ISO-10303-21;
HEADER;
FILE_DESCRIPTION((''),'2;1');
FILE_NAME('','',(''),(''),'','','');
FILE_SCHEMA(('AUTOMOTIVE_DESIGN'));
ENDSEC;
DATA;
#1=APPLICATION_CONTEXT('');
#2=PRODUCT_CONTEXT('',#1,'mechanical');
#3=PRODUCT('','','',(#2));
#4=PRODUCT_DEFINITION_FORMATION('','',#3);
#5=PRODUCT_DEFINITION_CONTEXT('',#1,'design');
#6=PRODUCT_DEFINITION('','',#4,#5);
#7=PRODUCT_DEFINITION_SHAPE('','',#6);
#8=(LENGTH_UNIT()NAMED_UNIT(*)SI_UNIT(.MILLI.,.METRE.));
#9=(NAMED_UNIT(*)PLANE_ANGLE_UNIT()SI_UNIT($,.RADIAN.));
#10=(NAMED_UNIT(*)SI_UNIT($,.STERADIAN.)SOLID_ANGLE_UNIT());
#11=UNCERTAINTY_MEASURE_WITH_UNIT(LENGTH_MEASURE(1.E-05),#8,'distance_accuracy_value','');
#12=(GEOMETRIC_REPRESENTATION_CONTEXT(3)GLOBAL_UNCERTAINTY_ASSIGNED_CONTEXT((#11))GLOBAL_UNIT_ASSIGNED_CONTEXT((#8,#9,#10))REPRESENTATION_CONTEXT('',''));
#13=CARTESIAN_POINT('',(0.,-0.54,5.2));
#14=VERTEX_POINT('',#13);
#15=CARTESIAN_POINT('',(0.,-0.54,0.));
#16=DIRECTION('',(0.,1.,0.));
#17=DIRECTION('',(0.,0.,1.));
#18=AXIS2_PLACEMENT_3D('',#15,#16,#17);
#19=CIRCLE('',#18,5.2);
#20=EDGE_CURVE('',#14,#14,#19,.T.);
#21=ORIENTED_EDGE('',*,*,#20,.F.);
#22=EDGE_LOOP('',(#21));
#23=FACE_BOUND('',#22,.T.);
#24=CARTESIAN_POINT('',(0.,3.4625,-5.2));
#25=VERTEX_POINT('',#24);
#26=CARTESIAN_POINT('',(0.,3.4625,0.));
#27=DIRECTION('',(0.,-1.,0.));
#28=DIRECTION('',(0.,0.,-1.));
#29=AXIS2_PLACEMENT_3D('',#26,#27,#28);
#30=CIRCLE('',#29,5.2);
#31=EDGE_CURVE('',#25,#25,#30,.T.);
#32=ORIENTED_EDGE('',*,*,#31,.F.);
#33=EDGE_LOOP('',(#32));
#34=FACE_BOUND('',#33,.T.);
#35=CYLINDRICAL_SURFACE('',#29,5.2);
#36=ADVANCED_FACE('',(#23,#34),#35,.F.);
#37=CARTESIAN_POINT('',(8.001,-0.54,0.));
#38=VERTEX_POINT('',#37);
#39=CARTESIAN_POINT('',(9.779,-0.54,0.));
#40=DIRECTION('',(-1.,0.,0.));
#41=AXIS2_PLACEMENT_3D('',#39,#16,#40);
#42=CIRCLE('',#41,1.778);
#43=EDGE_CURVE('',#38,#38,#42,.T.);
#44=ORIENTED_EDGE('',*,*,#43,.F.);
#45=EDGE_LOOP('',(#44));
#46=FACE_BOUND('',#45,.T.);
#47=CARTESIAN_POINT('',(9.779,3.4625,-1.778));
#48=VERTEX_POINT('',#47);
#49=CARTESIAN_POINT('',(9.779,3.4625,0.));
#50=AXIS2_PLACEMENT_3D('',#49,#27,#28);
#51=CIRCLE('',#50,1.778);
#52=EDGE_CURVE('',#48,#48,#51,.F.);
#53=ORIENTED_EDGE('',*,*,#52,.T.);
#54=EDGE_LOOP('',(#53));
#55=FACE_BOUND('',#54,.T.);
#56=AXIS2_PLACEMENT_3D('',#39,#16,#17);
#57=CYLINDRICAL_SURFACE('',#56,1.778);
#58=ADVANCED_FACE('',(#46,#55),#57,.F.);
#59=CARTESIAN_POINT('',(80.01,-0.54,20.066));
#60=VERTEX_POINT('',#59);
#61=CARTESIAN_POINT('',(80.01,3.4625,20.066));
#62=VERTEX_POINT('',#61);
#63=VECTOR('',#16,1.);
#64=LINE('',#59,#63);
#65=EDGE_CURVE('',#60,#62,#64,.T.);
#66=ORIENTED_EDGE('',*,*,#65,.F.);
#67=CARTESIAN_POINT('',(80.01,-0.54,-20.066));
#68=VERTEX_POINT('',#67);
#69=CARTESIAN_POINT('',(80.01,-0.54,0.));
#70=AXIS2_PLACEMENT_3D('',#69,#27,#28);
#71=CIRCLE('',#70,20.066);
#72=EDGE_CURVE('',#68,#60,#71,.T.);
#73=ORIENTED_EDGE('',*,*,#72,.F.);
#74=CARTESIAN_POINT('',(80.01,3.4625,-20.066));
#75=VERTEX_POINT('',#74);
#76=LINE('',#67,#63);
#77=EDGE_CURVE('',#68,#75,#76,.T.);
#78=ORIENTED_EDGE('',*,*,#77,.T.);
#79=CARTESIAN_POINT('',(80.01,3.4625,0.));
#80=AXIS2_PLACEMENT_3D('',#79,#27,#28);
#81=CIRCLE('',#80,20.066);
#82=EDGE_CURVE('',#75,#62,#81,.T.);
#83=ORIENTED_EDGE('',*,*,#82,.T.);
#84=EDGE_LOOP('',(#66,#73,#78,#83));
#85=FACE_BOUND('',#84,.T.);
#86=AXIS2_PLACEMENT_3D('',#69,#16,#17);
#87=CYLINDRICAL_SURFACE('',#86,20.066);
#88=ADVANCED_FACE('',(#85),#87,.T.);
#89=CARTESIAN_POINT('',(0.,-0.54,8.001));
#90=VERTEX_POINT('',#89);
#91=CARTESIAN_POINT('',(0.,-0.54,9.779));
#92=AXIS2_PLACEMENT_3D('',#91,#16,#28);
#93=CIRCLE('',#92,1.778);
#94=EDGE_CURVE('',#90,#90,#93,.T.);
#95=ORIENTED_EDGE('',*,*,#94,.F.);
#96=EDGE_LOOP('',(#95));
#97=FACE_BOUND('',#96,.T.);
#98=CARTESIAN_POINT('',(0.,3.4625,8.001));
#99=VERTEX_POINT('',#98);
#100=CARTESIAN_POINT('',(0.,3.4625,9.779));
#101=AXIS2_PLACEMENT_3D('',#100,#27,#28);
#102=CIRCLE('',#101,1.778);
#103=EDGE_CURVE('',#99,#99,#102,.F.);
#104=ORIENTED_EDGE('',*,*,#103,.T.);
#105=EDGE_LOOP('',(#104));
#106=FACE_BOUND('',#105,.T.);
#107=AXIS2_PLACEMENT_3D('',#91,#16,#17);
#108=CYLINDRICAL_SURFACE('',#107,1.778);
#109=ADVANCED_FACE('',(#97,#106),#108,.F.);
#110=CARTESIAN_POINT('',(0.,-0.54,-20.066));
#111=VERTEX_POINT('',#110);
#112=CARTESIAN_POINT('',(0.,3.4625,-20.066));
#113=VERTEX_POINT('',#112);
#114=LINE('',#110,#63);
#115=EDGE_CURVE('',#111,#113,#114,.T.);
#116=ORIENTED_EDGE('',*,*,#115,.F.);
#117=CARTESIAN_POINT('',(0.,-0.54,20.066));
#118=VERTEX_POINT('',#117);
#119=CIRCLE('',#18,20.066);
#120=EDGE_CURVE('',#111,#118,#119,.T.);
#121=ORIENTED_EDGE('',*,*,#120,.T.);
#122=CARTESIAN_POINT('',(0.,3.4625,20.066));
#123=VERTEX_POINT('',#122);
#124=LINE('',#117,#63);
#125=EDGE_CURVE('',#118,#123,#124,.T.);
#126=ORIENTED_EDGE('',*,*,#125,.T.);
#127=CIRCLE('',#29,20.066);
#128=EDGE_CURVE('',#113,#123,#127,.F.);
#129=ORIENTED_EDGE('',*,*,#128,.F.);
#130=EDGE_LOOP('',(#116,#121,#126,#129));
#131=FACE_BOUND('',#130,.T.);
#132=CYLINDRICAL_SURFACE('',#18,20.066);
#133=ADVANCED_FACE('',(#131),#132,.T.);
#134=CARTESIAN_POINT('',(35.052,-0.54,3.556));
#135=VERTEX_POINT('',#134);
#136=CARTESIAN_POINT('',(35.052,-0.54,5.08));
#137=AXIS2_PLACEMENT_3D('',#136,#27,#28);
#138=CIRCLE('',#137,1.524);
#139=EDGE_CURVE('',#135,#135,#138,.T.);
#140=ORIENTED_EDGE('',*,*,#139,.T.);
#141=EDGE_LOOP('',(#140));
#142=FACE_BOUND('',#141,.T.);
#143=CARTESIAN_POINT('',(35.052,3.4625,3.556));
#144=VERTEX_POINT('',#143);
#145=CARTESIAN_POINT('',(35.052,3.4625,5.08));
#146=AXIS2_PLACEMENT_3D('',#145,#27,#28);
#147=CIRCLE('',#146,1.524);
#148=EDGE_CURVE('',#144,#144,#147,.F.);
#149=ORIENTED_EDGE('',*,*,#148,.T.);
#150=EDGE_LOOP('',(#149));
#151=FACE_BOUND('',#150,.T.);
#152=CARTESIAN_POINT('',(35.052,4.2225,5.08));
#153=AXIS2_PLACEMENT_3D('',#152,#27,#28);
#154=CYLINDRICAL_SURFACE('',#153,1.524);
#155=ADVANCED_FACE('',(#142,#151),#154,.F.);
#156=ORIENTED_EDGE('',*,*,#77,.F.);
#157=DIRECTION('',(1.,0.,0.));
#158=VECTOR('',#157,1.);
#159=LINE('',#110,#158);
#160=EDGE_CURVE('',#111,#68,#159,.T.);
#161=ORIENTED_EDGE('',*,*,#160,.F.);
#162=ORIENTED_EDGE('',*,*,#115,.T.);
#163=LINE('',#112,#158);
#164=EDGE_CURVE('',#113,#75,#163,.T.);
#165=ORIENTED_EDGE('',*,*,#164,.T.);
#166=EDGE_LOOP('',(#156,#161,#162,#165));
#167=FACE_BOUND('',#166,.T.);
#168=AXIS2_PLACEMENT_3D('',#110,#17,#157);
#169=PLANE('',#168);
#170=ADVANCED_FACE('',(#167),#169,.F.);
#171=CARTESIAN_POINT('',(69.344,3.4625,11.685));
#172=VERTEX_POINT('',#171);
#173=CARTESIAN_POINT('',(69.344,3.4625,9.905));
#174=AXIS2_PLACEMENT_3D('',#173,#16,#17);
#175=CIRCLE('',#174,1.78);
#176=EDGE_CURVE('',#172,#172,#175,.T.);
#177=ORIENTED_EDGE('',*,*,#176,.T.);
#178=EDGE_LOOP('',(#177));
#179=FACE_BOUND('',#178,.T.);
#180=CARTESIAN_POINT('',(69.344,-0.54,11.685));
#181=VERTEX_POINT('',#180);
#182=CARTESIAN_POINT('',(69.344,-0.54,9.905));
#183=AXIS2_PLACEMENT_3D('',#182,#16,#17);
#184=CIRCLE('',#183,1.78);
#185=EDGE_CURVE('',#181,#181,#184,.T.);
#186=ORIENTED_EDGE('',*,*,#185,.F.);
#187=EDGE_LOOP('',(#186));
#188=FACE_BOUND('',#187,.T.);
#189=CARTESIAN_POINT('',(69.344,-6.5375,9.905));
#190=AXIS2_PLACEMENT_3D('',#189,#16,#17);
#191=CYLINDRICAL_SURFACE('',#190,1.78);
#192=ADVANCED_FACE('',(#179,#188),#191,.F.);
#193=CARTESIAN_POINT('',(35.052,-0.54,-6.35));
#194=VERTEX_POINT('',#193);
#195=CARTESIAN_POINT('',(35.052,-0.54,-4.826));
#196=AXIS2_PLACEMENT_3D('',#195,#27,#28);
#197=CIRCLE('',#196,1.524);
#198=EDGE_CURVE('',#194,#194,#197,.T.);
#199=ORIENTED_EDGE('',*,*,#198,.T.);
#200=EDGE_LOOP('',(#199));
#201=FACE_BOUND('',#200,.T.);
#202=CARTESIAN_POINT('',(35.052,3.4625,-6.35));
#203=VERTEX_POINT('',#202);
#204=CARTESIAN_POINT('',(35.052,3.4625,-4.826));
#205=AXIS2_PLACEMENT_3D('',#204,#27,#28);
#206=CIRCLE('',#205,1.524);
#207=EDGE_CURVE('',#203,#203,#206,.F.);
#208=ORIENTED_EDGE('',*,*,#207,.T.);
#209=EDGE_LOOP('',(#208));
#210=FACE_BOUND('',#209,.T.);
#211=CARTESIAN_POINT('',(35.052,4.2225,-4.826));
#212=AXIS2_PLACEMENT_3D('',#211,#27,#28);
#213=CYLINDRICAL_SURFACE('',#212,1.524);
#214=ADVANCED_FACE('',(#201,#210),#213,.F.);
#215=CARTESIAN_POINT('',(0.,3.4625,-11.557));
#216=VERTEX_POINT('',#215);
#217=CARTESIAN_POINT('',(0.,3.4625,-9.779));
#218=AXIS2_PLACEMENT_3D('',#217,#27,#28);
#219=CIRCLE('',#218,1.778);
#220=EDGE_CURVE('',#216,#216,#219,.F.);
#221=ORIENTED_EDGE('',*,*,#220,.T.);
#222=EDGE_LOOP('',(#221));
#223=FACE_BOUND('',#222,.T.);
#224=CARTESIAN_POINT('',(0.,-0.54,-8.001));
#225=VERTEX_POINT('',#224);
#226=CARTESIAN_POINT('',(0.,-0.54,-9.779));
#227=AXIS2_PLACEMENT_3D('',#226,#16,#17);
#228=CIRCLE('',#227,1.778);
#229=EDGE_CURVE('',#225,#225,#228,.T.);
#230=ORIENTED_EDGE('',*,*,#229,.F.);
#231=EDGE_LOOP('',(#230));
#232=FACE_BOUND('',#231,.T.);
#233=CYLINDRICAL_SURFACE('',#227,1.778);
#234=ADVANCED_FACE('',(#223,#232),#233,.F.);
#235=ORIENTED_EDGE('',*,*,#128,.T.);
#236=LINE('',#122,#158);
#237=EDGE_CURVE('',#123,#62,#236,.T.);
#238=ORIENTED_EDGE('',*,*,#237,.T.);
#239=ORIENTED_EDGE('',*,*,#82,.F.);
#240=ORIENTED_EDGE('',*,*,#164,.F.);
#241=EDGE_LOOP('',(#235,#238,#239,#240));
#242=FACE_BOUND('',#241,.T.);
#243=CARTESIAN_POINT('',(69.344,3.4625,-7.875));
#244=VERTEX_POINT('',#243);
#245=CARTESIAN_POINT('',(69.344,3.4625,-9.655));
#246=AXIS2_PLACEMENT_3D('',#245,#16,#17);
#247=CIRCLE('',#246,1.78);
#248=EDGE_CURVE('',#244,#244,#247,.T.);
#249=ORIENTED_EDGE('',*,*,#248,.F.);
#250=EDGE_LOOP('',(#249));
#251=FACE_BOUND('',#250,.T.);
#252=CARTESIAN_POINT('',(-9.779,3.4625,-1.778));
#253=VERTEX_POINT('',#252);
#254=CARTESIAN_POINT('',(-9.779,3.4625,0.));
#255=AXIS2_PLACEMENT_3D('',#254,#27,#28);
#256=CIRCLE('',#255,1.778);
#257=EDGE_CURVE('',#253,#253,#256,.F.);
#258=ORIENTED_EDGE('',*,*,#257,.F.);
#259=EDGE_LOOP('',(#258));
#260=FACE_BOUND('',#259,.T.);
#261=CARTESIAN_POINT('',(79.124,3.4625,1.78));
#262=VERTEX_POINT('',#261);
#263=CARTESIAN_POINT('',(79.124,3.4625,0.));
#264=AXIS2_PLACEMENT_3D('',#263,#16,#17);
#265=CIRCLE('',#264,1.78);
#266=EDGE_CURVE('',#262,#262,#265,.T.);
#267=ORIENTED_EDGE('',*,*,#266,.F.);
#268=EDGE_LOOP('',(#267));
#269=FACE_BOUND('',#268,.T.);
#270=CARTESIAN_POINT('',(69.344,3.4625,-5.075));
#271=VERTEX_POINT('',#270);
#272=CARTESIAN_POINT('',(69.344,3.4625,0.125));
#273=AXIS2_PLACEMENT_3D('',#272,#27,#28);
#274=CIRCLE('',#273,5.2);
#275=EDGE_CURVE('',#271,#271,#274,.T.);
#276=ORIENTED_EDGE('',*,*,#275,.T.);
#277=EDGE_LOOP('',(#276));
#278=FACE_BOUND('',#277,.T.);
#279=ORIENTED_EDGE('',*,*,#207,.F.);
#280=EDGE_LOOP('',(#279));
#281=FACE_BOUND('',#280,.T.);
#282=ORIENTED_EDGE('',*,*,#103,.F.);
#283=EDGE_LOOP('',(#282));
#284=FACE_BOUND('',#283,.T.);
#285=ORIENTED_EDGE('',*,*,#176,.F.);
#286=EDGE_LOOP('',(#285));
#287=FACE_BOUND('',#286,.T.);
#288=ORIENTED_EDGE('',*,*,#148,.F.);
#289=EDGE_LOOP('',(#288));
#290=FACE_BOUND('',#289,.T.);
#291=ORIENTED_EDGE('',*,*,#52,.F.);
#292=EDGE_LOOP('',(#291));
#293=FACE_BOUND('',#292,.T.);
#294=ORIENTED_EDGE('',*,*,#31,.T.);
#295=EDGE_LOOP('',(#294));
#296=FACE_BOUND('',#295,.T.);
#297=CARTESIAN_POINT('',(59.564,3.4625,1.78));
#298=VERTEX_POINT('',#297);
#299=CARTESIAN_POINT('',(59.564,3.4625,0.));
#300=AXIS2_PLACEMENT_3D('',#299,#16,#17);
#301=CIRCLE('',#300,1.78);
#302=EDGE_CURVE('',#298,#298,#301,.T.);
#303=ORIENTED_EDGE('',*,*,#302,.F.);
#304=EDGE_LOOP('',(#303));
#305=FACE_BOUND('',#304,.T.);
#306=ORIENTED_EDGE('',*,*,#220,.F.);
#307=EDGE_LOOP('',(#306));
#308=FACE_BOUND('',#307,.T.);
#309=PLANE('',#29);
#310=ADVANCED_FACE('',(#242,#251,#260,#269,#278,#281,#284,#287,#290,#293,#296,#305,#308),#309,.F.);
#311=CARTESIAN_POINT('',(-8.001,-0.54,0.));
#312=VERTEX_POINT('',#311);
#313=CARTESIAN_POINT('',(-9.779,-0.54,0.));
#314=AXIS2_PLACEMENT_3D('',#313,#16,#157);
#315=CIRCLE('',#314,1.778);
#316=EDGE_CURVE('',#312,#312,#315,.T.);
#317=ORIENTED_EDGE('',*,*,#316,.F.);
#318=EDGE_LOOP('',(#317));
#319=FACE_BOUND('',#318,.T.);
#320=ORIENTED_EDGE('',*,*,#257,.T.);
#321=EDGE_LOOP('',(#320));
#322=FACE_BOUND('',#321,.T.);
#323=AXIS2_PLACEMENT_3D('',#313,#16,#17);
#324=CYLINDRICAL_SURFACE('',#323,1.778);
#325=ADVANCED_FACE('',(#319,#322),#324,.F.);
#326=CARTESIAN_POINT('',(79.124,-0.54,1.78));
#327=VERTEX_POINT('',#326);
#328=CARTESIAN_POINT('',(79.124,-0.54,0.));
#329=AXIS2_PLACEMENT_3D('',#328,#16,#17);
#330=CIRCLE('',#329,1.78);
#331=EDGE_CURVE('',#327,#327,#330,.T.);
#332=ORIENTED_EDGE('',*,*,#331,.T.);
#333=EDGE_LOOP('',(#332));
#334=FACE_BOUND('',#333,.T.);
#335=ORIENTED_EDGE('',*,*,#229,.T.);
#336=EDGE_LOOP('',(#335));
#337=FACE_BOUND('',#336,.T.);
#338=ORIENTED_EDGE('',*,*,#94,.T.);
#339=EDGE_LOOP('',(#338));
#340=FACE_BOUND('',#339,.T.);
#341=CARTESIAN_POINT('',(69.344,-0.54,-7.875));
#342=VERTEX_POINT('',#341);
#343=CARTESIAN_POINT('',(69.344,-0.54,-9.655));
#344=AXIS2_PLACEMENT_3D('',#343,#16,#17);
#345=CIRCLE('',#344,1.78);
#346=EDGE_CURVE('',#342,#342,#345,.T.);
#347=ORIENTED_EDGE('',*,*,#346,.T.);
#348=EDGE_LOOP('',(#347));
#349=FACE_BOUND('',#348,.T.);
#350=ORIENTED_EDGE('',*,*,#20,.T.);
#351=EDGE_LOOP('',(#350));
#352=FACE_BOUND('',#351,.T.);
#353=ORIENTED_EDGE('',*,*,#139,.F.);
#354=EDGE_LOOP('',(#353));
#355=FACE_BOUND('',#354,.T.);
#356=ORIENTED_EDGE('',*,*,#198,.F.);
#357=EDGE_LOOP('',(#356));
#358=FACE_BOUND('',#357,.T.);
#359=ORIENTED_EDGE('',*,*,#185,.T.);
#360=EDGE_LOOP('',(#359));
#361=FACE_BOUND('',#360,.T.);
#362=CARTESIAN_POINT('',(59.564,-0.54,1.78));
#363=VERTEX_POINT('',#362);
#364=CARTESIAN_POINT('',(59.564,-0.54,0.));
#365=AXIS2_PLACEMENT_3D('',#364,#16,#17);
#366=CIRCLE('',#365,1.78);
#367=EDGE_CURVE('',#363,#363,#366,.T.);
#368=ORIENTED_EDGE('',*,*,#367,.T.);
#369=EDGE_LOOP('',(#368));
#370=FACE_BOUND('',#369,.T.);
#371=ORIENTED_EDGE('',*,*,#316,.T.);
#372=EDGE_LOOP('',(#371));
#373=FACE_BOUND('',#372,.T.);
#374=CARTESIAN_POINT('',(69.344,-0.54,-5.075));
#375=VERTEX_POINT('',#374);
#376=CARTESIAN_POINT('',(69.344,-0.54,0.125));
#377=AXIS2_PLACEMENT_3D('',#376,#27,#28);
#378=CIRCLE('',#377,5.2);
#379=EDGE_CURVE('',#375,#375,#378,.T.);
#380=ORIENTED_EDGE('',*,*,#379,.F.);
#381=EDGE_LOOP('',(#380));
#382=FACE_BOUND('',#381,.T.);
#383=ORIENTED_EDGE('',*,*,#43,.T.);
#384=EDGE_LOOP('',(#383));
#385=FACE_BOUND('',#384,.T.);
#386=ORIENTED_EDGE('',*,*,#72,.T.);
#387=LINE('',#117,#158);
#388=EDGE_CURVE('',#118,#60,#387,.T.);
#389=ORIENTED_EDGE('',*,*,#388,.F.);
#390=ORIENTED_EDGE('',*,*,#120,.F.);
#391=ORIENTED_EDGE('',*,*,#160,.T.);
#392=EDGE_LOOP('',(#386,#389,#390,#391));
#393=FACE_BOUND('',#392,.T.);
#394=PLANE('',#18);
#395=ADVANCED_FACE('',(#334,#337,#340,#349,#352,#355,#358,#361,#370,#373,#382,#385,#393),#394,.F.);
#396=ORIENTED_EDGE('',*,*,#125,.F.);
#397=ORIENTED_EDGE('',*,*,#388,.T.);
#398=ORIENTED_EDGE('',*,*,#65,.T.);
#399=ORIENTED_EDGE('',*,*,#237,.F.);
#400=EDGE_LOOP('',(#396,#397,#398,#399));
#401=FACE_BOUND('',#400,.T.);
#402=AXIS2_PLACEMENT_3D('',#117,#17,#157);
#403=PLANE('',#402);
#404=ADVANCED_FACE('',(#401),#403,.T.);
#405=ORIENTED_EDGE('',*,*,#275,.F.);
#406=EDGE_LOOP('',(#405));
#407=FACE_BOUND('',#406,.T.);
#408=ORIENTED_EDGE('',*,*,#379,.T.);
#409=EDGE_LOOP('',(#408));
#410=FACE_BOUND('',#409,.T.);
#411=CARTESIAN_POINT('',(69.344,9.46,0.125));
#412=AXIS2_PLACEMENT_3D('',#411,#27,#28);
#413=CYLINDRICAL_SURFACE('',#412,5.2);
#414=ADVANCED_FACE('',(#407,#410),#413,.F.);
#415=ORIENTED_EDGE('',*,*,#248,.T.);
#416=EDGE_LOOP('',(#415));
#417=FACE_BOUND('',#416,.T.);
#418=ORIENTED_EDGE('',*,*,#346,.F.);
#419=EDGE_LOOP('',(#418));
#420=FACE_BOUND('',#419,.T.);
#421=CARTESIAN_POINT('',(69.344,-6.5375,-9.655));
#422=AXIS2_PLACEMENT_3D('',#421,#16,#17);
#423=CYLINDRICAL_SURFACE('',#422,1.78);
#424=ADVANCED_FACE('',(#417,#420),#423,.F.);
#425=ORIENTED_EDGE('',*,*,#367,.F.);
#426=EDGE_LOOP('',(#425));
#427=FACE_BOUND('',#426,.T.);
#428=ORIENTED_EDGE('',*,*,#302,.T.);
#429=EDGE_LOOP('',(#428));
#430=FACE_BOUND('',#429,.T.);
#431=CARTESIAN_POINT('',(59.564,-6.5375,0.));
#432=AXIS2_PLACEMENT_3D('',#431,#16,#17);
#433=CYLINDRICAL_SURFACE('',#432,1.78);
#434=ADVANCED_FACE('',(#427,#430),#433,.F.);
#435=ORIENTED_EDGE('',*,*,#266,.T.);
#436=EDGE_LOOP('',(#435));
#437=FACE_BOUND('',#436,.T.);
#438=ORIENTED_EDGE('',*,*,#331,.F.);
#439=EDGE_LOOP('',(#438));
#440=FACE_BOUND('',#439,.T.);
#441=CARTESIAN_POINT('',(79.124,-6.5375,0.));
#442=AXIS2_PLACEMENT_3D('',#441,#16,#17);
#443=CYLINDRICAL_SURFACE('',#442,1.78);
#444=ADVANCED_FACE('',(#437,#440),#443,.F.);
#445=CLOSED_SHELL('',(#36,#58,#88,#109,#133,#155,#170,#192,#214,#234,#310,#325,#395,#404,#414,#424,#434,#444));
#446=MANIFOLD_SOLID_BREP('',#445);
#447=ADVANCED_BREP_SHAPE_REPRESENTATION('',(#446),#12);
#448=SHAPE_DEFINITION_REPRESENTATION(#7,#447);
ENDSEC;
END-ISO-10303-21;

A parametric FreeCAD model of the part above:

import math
import FreeCAD as App
import Part
import Sketcher
from FreeCAD import Vector
Q = App.Units.Quantity


def add_polygon(sketch, points):
    """Adds a closed chain of lines whose ends are joined by coincident constraints."""
    first, n = sketch.GeometryCount, len(points)
    for a, b in zip(points, points[1:] + points[:1]):
        sketch.addGeometry(Part.LineSegment(App.Vector(*a, 0), App.Vector(*b, 0)), False)
    for i in range(n):
        sketch.addConstraint(Sketcher.Constraint("Coincident", first + i, 2, first + (i + 1) % n, 1))

doc = App.newDocument("Part")
body = doc.addObject("PartDesign::Body", "Body")

sketch1 = body.newObject("Sketcher::SketchObject", "Sketch")
sketch1.AttachmentSupport = (doc.getObject("XZ_Plane"), [""])
sketch1.MapMode = "FlatFace"
sketch1.addGeometry([
    Part.LineSegment(Vector(-2.5, -13.4, 0), Vector(-4, -4, 0)),
    Part.LineSegment(Vector(-4, -4, 0), Vector(-12.4, -2.5, 0)),
    Part.ArcOfCircle(Part.Circle(Vector(-12, 0, 0), Vector(0, 0, 1), 2.5), math.radians(100), math.radians(260)),
    Part.LineSegment(Vector(-12.4, 2.5, 0), Vector(-4, 4, 0)),
    Part.LineSegment(Vector(-4, 4, 0), Vector(-2.5, 13.4, 0)),
    Part.ArcOfCircle(Part.Circle(Vector(0, 13, 0), Vector(0, 0, 1), 2.5), math.radians(9), math.radians(171)),
    Part.LineSegment(Vector(2.5, 13.4, 0), Vector(4, 4, 0)),
    Part.LineSegment(Vector(4, 4, 0), Vector(12.4, 2.5, 0)),
    Part.ArcOfCircle(Part.Circle(Vector(12, 0, 0), Vector(0, 0, 1), 2.5), math.radians(-80), math.radians(80)),
    Part.LineSegment(Vector(12.4, -2.5, 0), Vector(4, -4, 0)),
    Part.LineSegment(Vector(4, -4, 0), Vector(2.5, -13.4, 0)),
    Part.ArcOfCircle(Part.Circle(Vector(0, -13, 0), Vector(0, 0, 1), 2.5), math.radians(-171), math.radians(-9)),
    Part.Circle(Vector(0, 12, 0), Vector(0, 0, 1), 0.5),
    Part.Circle(Vector(0, 9.5, 0), Vector(0, 0, 1), 0.5),
    Part.Circle(Vector(0, 7.5, 0), Vector(0, 0, 1), 0.5),
    Part.Circle(Vector(12, 0, 0), Vector(0, 0, 1), 0.5),
    Part.Circle(Vector(9.5, 0, 0), Vector(0, 0, 1), 0.5),
    Part.Circle(Vector(7.5, 0, 0), Vector(0, 0, 1), 0.5),
    Part.Circle(Vector(0, 0, 0), Vector(0, 0, 1), 1.4),
    Part.Circle(Vector(-7.5, 0, 0), Vector(0, 0, 1), 0.5),
    Part.Circle(Vector(-9.5, 0, 0), Vector(0, 0, 1), 0.5),
    Part.Circle(Vector(-12, 0, 0), Vector(0, 0, 1), 0.5),
    Part.Circle(Vector(0, -7.5, 0), Vector(0, 0, 1), 0.5),
    Part.Circle(Vector(0, -9.5, 0), Vector(0, 0, 1), 0.5),
    Part.Circle(Vector(0, -12, 0), Vector(0, 0, 1), 0.5),
], False)
sketch1.addConstraint([
    Sketcher.Constraint("Coincident", 0, 2, 1, 1),
    Sketcher.Constraint("Tangent", 1, 2, 2, 2),
    Sketcher.Constraint("Tangent", 2, 1, 3, 1),
    Sketcher.Constraint("Coincident", 3, 2, 4, 1),
    Sketcher.Constraint("Tangent", 4, 2, 5, 2),
    Sketcher.Constraint("Tangent", 5, 1, 6, 1),
    Sketcher.Constraint("Coincident", 6, 2, 7, 1),
    Sketcher.Constraint("Tangent", 7, 2, 8, 2),
    Sketcher.Constraint("Tangent", 8, 1, 9, 1),
    Sketcher.Constraint("Coincident", 9, 2, 10, 1),
    Sketcher.Constraint("Tangent", 10, 2, 11, 2),
    Sketcher.Constraint("Tangent", 11, 1, 0, 1),
    Sketcher.Constraint("Coincident", 18, 3, -1, 1),
    Sketcher.Constraint("Coincident", 15, 3, 8, 3),
    Sketcher.Constraint("Coincident", 21, 3, 2, 3),
    Sketcher.Constraint("Equal", 2, 5),
    Sketcher.Constraint("Equal", 5, 8),
    Sketcher.Constraint("Equal", 8, 11),
    Sketcher.Constraint("Equal", 12, 13),
    Sketcher.Constraint("Equal", 13, 14),
    Sketcher.Constraint("Equal", 14, 15),
    Sketcher.Constraint("Equal", 15, 16),
    Sketcher.Constraint("Equal", 16, 17),
    Sketcher.Constraint("Equal", 17, 19),
    Sketcher.Constraint("Equal", 19, 20),
    Sketcher.Constraint("Equal", 20, 21),
    Sketcher.Constraint("Equal", 21, 22),
    Sketcher.Constraint("Equal", 22, 23),
    Sketcher.Constraint("Equal", 23, 24),
    Sketcher.Constraint("Symmetric", 2, 3, 8, 3, -1, 1),
    Sketcher.Constraint("Symmetric", 5, 3, 11, 3, -1, 1),
    Sketcher.Constraint("Symmetric", 17, 3, 19, 3, -1, 1),
    Sketcher.Constraint("Symmetric", 16, 3, 20, 3, -1, 1),
    Sketcher.Constraint("Symmetric", 14, 3, 22, 3, -1, 1),
    Sketcher.Constraint("Symmetric", 13, 3, 23, 3, -1, 1),
    Sketcher.Constraint("Symmetric", 12, 3, 24, 3, -1, 1),
    Sketcher.Constraint("Symmetric", 0, 2, 6, 2, -1, 1),
    Sketcher.Constraint("Symmetric", 3, 2, 9, 2, -1, 1),
    Sketcher.Constraint("Symmetric", 4, 2, 5, 1, -2),
    Sketcher.Constraint("Symmetric", 2, 1, 7, 2, -2),
    Sketcher.Constraint("PointOnObject", 12, 3, -2),
    Sketcher.Constraint("PointOnObject", 13, 3, -2),
    Sketcher.Constraint("PointOnObject", 14, 3, -2),
    Sketcher.Constraint("PointOnObject", 16, 3, -1),
    Sketcher.Constraint("PointOnObject", 17, 3, -1),
    Sketcher.Constraint("Diameter", 12, 1.0),
    Sketcher.Constraint("Diameter", 18, 2.75),
    Sketcher.Constraint("Radius", 2, 2.5),
    Sketcher.Constraint("DistanceX", 2, 3, -1, 1, 12.0),
    Sketcher.Constraint("DistanceY", -1, 1, 5, 3, 13.0),
    Sketcher.Constraint("DistanceY", -1, 1, 12, 3, 12.0),
    Sketcher.Constraint("DistanceY", -1, 1, 13, 3, 9.5),
    Sketcher.Constraint("DistanceY", -1, 1, 14, 3, 7.5),
    Sketcher.Constraint("DistanceX", -1, 1, 16, 3, 9.5),
    Sketcher.Constraint("DistanceX", -1, 1, 17, 3, 7.5),
    Sketcher.Constraint("DistanceX", 0, 2, -1, 1, 4.0),
    Sketcher.Constraint("DistanceY", 0, 2, -1, 1, 4.0),
])
pad1 = body.newObject("PartDesign::Pad", "Pad")
pad1.Profile = sketch1
pad1.Length = 2
pad1.Reversed = True

sketch2 = body.newObject("Sketcher::SketchObject", "Sketch001")
sketch2.AttachmentSupport = (doc.getObject("XZ_Plane"), [""])
sketch2.MapMode = "FlatFace"
sketch2.addGeometry([
    Part.Circle(Vector(0, 0, 0), Vector(0, 0, 1), 4.6),
    Part.Circle(Vector(0, 0, 0), Vector(0, 0, 1), 2.6),
], False)
sketch2.addConstraint([
    Sketcher.Constraint("Coincident", 0, 3, -1, 1),
    Sketcher.Constraint("Coincident", 1, 3, -1, 1),
    Sketcher.Constraint("Diameter", 0, 9.254007),
    Sketcher.Constraint("Diameter", 1, 5.254007),
])
pad2 = body.newObject("PartDesign::Pad", "Pad001")
pad2.Profile = sketch2
pad2.Length = 2.5

sketch3 = body.newObject("Sketcher::SketchObject", "Sketch002")
sketch3.AttachmentSupport = (doc.getObject("XZ_Plane"), [""])
sketch3.MapMode = "FlatFace"
sketch3.AttachmentOffset = App.Placement(Vector(0, 0, 2.5), App.Rotation())
sketch3.addGeometry([
    Part.LineSegment(Vector(0.28, 2.61, 0), Vector(0, 3.1, 0)),
    Part.LineSegment(Vector(0, 3.1, 0), Vector(-0.28, 2.61, 0)),
    Part.ArcOfCircle(Part.Circle(Vector(0, 0, 0), Vector(0, 0, 1), 2.63), math.radians(96.18), math.radians(101.82)),
    Part.LineSegment(Vector(-0.54, 2.57, 0), Vector(-0.96, 2.95, 0)),
    Part.LineSegment(Vector(-0.96, 2.95, 0), Vector(-1.08, 2.4, 0)),
    Part.ArcOfCircle(Part.Circle(Vector(0, 0, 0), Vector(0, 0, 1), 2.63), math.radians(114.18), math.radians(119.82)),
    Part.LineSegment(Vector(-1.31, 2.28, 0), Vector(-1.82, 2.51, 0)),
    Part.LineSegment(Vector(-1.82, 2.51, 0), Vector(-1.76, 1.95, 0)),
    Part.ArcOfCircle(Part.Circle(Vector(0, 0, 0), Vector(0, 0, 1), 2.63), math.radians(132.18), math.radians(137.82)),
    Part.LineSegment(Vector(-1.95, 1.76, 0), Vector(-2.51, 1.82, 0)),
    Part.LineSegment(Vector(-2.51, 1.82, 0), Vector(-2.28, 1.31, 0)),
    Part.ArcOfCircle(Part.Circle(Vector(0, 0, 0), Vector(0, 0, 1), 2.63), math.radians(150.18), math.radians(155.82)),
    Part.LineSegment(Vector(-2.4, 1.08, 0), Vector(-2.95, 0.96, 0)),
    Part.LineSegment(Vector(-2.95, 0.96, 0), Vector(-2.57, 0.54, 0)),
    Part.ArcOfCircle(Part.Circle(Vector(0, 0, 0), Vector(0, 0, 1), 2.63), math.radians(168.18), math.radians(173.82)),
    Part.LineSegment(Vector(-2.61, 0.28, 0), Vector(-3.1, 0, 0)),
    Part.LineSegment(Vector(-3.1, 0, 0), Vector(-2.61, -0.28, 0)),
    Part.ArcOfCircle(Part.Circle(Vector(0, 0, 0), Vector(0, 0, 1), 2.63), math.radians(-173.82), math.radians(-168.18)),
    Part.LineSegment(Vector(-2.57, -0.54, 0), Vector(-2.95, -0.96, 0)),
    Part.LineSegment(Vector(-2.95, -0.96, 0), Vector(-2.4, -1.08, 0)),
    Part.ArcOfCircle(Part.Circle(Vector(0, 0, 0), Vector(0, 0, 1), 2.63), math.radians(-155.82), math.radians(-150.18)),
    Part.LineSegment(Vector(-2.28, -1.31, 0), Vector(-2.51, -1.82, 0)),
    Part.LineSegment(Vector(-2.51, -1.82, 0), Vector(-1.95, -1.76, 0)),
    Part.ArcOfCircle(Part.Circle(Vector(0, 0, 0), Vector(0, 0, 1), 2.63), math.radians(-137.82), math.radians(-132.18)),
    Part.LineSegment(Vector(-1.76, -1.95, 0), Vector(-1.82, -2.51, 0)),
    Part.LineSegment(Vector(-1.82, -2.51, 0), Vector(-1.31, -2.28, 0)),
    Part.ArcOfCircle(Part.Circle(Vector(0, 0, 0), Vector(0, 0, 1), 2.63), math.radians(-119.82), math.radians(-114.18)),
    Part.LineSegment(Vector(-1.08, -2.4, 0), Vector(-0.96, -2.95, 0)),
    Part.LineSegment(Vector(-0.96, -2.95, 0), Vector(-0.54, -2.57, 0)),
    Part.ArcOfCircle(Part.Circle(Vector(0, 0, 0), Vector(0, 0, 1), 2.63), math.radians(-101.82), math.radians(-96.18)),
    Part.LineSegment(Vector(-0.28, -2.61, 0), Vector(0, -3.1, 0)),
    Part.LineSegment(Vector(0, -3.1, 0), Vector(0.28, -2.61, 0)),
    Part.ArcOfCircle(Part.Circle(Vector(0, 0, 0), Vector(0, 0, 1), 2.63), math.radians(-83.82), math.radians(-78.18)),
    Part.LineSegment(Vector(0.54, -2.57, 0), Vector(0.96, -2.95, 0)),
    Part.LineSegment(Vector(0.96, -2.95, 0), Vector(1.08, -2.4, 0)),
    Part.ArcOfCircle(Part.Circle(Vector(0, 0, 0), Vector(0, 0, 1), 2.63), math.radians(-65.82), math.radians(-60.18)),
    Part.LineSegment(Vector(1.31, -2.28, 0), Vector(1.82, -2.51, 0)),
    Part.LineSegment(Vector(1.82, -2.51, 0), Vector(1.76, -1.95, 0)),
    Part.ArcOfCircle(Part.Circle(Vector(0, 0, 0), Vector(0, 0, 1), 2.63), math.radians(-47.82), math.radians(-42.18)),
    Part.LineSegment(Vector(1.95, -1.76, 0), Vector(2.51, -1.82, 0)),
    Part.LineSegment(Vector(2.51, -1.82, 0), Vector(2.28, -1.31, 0)),
    Part.ArcOfCircle(Part.Circle(Vector(0, 0, 0), Vector(0, 0, 1), 2.63), math.radians(-29.82), math.radians(-24.18)),
    Part.LineSegment(Vector(2.4, -1.08, 0), Vector(2.95, -0.96, 0)),
    Part.LineSegment(Vector(2.95, -0.96, 0), Vector(2.57, -0.54, 0)),
    Part.ArcOfCircle(Part.Circle(Vector(0, 0, 0), Vector(0, 0, 1), 2.63), math.radians(-11.82), math.radians(-6.18)),
    Part.LineSegment(Vector(2.61, -0.28, 0), Vector(3.1, 0, 0)),
    Part.LineSegment(Vector(3.1, 0, 0), Vector(2.61, 0.28, 0)),
    Part.ArcOfCircle(Part.Circle(Vector(0, 0, 0), Vector(0, 0, 1), 2.63), math.radians(6.18), math.radians(11.82)),
    Part.LineSegment(Vector(2.57, 0.54, 0), Vector(2.95, 0.96, 0)),
    Part.LineSegment(Vector(2.95, 0.96, 0), Vector(2.4, 1.08, 0)),
    Part.ArcOfCircle(Part.Circle(Vector(0, 0, 0), Vector(0, 0, 1), 2.63), math.radians(24.18), math.radians(29.82)),
    Part.LineSegment(Vector(2.28, 1.31, 0), Vector(2.51, 1.82, 0)),
    Part.LineSegment(Vector(2.51, 1.82, 0), Vector(1.95, 1.76, 0)),
    Part.ArcOfCircle(Part.Circle(Vector(0, 0, 0), Vector(0, 0, 1), 2.63), math.radians(42.18), math.radians(47.82)),
    Part.LineSegment(Vector(1.76, 1.95, 0), Vector(1.82, 2.51, 0)),
    Part.LineSegment(Vector(1.82, 2.51, 0), Vector(1.31, 2.28, 0)),
    Part.ArcOfCircle(Part.Circle(Vector(0, 0, 0), Vector(0, 0, 1), 2.63), math.radians(60.18), math.radians(65.82)),
    Part.LineSegment(Vector(1.08, 2.4, 0), Vector(0.96, 2.95, 0)),
    Part.LineSegment(Vector(0.96, 2.95, 0), Vector(0.54, 2.57, 0)),
    Part.ArcOfCircle(Part.Circle(Vector(0, 0, 0), Vector(0, 0, 1), 2.63), math.radians(78.18), math.radians(83.82)),
], False)
sketch3.addConstraint([
    Sketcher.Constraint("Coincident", 0, 2, 1, 1),
    Sketcher.Constraint("Coincident", 1, 2, 2, 1),
    Sketcher.Constraint("Coincident", 2, 2, 3, 1),
    Sketcher.Constraint("Coincident", 3, 2, 4, 1),
    Sketcher.Constraint("Coincident", 4, 2, 5, 1),
    Sketcher.Constraint("Coincident", 5, 2, 6, 1),
    Sketcher.Constraint("Coincident", 6, 2, 7, 1),
    Sketcher.Constraint("Coincident", 7, 2, 8, 1),
    Sketcher.Constraint("Coincident", 8, 2, 9, 1),
    Sketcher.Constraint("Coincident", 9, 2, 10, 1),
    Sketcher.Constraint("Coincident", 10, 2, 11, 1),
    Sketcher.Constraint("Coincident", 11, 2, 12, 1),
    Sketcher.Constraint("Coincident", 12, 2, 13, 1),
    Sketcher.Constraint("Coincident", 13, 2, 14, 1),
    Sketcher.Constraint("Coincident", 14, 2, 15, 1),
    Sketcher.Constraint("Coincident", 15, 2, 16, 1),
    Sketcher.Constraint("Coincident", 16, 2, 17, 1),
    Sketcher.Constraint("Coincident", 17, 2, 18, 1),
    Sketcher.Constraint("Coincident", 18, 2, 19, 1),
    Sketcher.Constraint("Coincident", 19, 2, 20, 1),
    Sketcher.Constraint("Coincident", 20, 2, 21, 1),
    Sketcher.Constraint("Coincident", 21, 2, 22, 1),
    Sketcher.Constraint("Coincident", 22, 2, 23, 1),
    Sketcher.Constraint("Coincident", 23, 2, 24, 1),
    Sketcher.Constraint("Coincident", 24, 2, 25, 1),
    Sketcher.Constraint("Coincident", 25, 2, 26, 1),
    Sketcher.Constraint("Coincident", 26, 2, 27, 1),
    Sketcher.Constraint("Coincident", 27, 2, 28, 1),
    Sketcher.Constraint("Coincident", 28, 2, 29, 1),
    Sketcher.Constraint("Coincident", 29, 2, 30, 1),
    Sketcher.Constraint("Coincident", 30, 2, 31, 1),
    Sketcher.Constraint("Coincident", 31, 2, 32, 1),
    Sketcher.Constraint("Coincident", 32, 2, 33, 1),
    Sketcher.Constraint("Coincident", 33, 2, 34, 1),
    Sketcher.Constraint("Coincident", 34, 2, 35, 1),
    Sketcher.Constraint("Coincident", 35, 2, 36, 1),
    Sketcher.Constraint("Coincident", 36, 2, 37, 1),
    Sketcher.Constraint("Coincident", 37, 2, 38, 1),
    Sketcher.Constraint("Coincident", 38, 2, 39, 1),
    Sketcher.Constraint("Coincident", 39, 2, 40, 1),
    Sketcher.Constraint("Coincident", 40, 2, 41, 1),
    Sketcher.Constraint("Coincident", 41, 2, 42, 1),
    Sketcher.Constraint("Coincident", 42, 2, 43, 1),
    Sketcher.Constraint("Coincident", 43, 2, 44, 1),
    Sketcher.Constraint("Coincident", 44, 2, 45, 1),
    Sketcher.Constraint("Coincident", 45, 2, 46, 1),
    Sketcher.Constraint("Coincident", 46, 2, 47, 1),
    Sketcher.Constraint("Coincident", 47, 2, 48, 1),
    Sketcher.Constraint("Coincident", 48, 2, 49, 1),
    Sketcher.Constraint("Coincident", 49, 2, 50, 1),
    Sketcher.Constraint("Coincident", 50, 2, 51, 1),
    Sketcher.Constraint("Coincident", 51, 2, 52, 1),
    Sketcher.Constraint("Coincident", 52, 2, 53, 1),
    Sketcher.Constraint("Coincident", 53, 2, 54, 1),
    Sketcher.Constraint("Coincident", 54, 2, 55, 1),
    Sketcher.Constraint("Coincident", 55, 2, 56, 1),
    Sketcher.Constraint("Coincident", 56, 2, 57, 1),
    Sketcher.Constraint("Coincident", 57, 2, 58, 1),
    Sketcher.Constraint("Coincident", 58, 2, 59, 1),
    Sketcher.Constraint("Coincident", 59, 2, 0, 1),
    Sketcher.Constraint("Coincident", 2, 3, -1, 1),
    Sketcher.Constraint("Coincident", 5, 3, -1, 1),
    Sketcher.Constraint("Coincident", 8, 3, -1, 1),
    Sketcher.Constraint("Coincident", 11, 3, -1, 1),
    Sketcher.Constraint("Coincident", 14, 3, -1, 1),
    Sketcher.Constraint("Coincident", 17, 3, -1, 1),
    Sketcher.Constraint("Coincident", 20, 3, -1, 1),
    Sketcher.Constraint("Coincident", 23, 3, -1, 1),
    Sketcher.Constraint("Coincident", 26, 3, -1, 1),
    Sketcher.Constraint("Coincident", 29, 3, -1, 1),
    Sketcher.Constraint("Coincident", 32, 3, -1, 1),
    Sketcher.Constraint("Coincident", 35, 3, -1, 1),
    Sketcher.Constraint("Coincident", 38, 3, -1, 1),
    Sketcher.Constraint("Coincident", 41, 3, -1, 1),
    Sketcher.Constraint("Coincident", 44, 3, -1, 1),
    Sketcher.Constraint("Coincident", 47, 3, -1, 1),
    Sketcher.Constraint("Coincident", 50, 3, -1, 1),
    Sketcher.Constraint("Coincident", 53, 3, -1, 1),
    Sketcher.Constraint("Coincident", 56, 3, -1, 1),
    Sketcher.Constraint("Coincident", 59, 3, -1, 1),
    Sketcher.Constraint("Equal", 2, 5),
    Sketcher.Constraint("Equal", 5, 8),
    Sketcher.Constraint("Equal", 8, 11),
    Sketcher.Constraint("Equal", 11, 14),
    Sketcher.Constraint("Equal", 14, 17),
    Sketcher.Constraint("Equal", 17, 20),
    Sketcher.Constraint("Equal", 20, 23),
    Sketcher.Constraint("Equal", 23, 26),
    Sketcher.Constraint("Equal", 26, 29),
    Sketcher.Constraint("Equal", 29, 32),
    Sketcher.Constraint("Equal", 32, 35),
    Sketcher.Constraint("Equal", 35, 38),
    Sketcher.Constraint("Equal", 38, 41),
    Sketcher.Constraint("Equal", 41, 44),
    Sketcher.Constraint("Equal", 44, 47),
    Sketcher.Constraint("Equal", 47, 50),
    Sketcher.Constraint("Equal", 50, 53),
    Sketcher.Constraint("Equal", 53, 56),
    Sketcher.Constraint("Equal", 56, 59),
    Sketcher.Constraint("Symmetric", 0, 2, 30, 2, -1, 1),
    Sketcher.Constraint("Symmetric", 3, 2, 33, 2, -1, 1),
    Sketcher.Constraint("Symmetric", 6, 2, 36, 2, -1, 1),
    Sketcher.Constraint("Symmetric", 9, 2, 39, 2, -1, 1),
    Sketcher.Constraint("Symmetric", 12, 2, 42, 2, -1, 1),
    Sketcher.Constraint("Symmetric", 15, 2, 45, 2, -1, 1),
    Sketcher.Constraint("Symmetric", 18, 2, 48, 2, -1, 1),
    Sketcher.Constraint("Symmetric", 21, 2, 51, 2, -1, 1),
    Sketcher.Constraint("Symmetric", 24, 2, 54, 2, -1, 1),
    Sketcher.Constraint("Symmetric", 27, 2, 57, 2, -1, 1),
    Sketcher.Constraint("Symmetric", 27, 2, 33, 2, -2),
    Sketcher.Constraint("Symmetric", 24, 2, 36, 2, -2),
    Sketcher.Constraint("Symmetric", 21, 2, 39, 2, -2),
    Sketcher.Constraint("Symmetric", 18, 2, 42, 2, -2),
    Sketcher.Constraint("PointOnObject", 0, 2, -2),
    Sketcher.Constraint("PointOnObject", 15, 2, -1),
    Sketcher.Constraint("Perpendicular", 0, 15),
    Sketcher.Constraint("Perpendicular", 1, 16),
    Sketcher.Constraint("Perpendicular", 3, 18),
    Sketcher.Constraint("Perpendicular", 4, 19),
    Sketcher.Constraint("Perpendicular", 6, 21),
    Sketcher.Constraint("Perpendicular", 7, 22),
    Sketcher.Constraint("Perpendicular", 9, 24),
    Sketcher.Constraint("Perpendicular", 10, 25),
    Sketcher.Constraint("Perpendicular", 12, 27),
    Sketcher.Constraint("Perpendicular", 13, 28),
    Sketcher.Constraint("Perpendicular", 15, 30),
    Sketcher.Constraint("Perpendicular", 16, 31),
    Sketcher.Constraint("Perpendicular", 18, 33),
    Sketcher.Constraint("Perpendicular", 19, 34),
    Sketcher.Constraint("Perpendicular", 21, 36),
    Sketcher.Constraint("Perpendicular", 22, 37),
    Sketcher.Constraint("Perpendicular", 24, 39),
    Sketcher.Constraint("Perpendicular", 25, 40),
    Sketcher.Constraint("Perpendicular", 27, 42),
    Sketcher.Constraint("Perpendicular", 28, 43),
    Sketcher.Constraint("Perpendicular", 30, 45),
    Sketcher.Constraint("Perpendicular", 31, 46),
    Sketcher.Constraint("Perpendicular", 33, 48),
    Sketcher.Constraint("Perpendicular", 34, 49),
    Sketcher.Constraint("Perpendicular", 36, 51),
    Sketcher.Constraint("Perpendicular", 37, 52),
    Sketcher.Constraint("Perpendicular", 39, 54),
    Sketcher.Constraint("Perpendicular", 40, 55),
    Sketcher.Constraint("Perpendicular", 42, 57),
    Sketcher.Constraint("Perpendicular", 43, 58),
    Sketcher.Constraint("Horizontal", 29, 2, 31, 2),
    Sketcher.Constraint("Horizontal", 28, 2, 32, 2),
    Sketcher.Constraint("Horizontal", 26, 2, 34, 2),
    Sketcher.Constraint("Horizontal", 25, 2, 35, 2),
    Sketcher.Constraint("Horizontal", 23, 2, 37, 2),
    Sketcher.Constraint("Equal", 1, 3),
    Sketcher.Constraint("Equal", 3, 4),
    Sketcher.Constraint("Equal", 4, 6),
    Sketcher.Constraint("Equal", 6, 7),
    Sketcher.Constraint("Equal", 7, 9),
    Sketcher.Constraint("Equal", 9, 10),
    Sketcher.Constraint("Equal", 10, 12),
    Sketcher.Constraint("Equal", 12, 13),
    Sketcher.Constraint("Equal", 13, 15),
    Sketcher.Constraint("Angle", 0, Q("120 deg")),
    Sketcher.Constraint("Angle", 3, Q("138 deg")),
    Sketcher.Constraint("Angle", 4, Q("-102 deg")),
    Sketcher.Constraint("Angle", 6, Q("156 deg")),
    Sketcher.Constraint("Angle", 7, Q("-84 deg")),
    Sketcher.Constraint("Radius", 2, 2.627004),
    Sketcher.Constraint("DistanceY", -1, 1, 7, 2, 1.946701),
])
pocket1 = body.newObject("PartDesign::Pocket", "Pocket")
pocket1.Profile = sketch3
pocket1.Length = 2.5

sketch4 = body.newObject("Sketcher::SketchObject", "Sketch003")
sketch4.AttachmentSupport = (doc.getObject("XZ_Plane"), [""])
sketch4.MapMode = "FlatFace"
sketch4.AttachmentOffset = App.Placement(Vector(0, 0, -2), App.Rotation())
sketch4.addGeometry([
    Part.Circle(Vector(0, 0, 0), Vector(0, 0, 1), 20.1),
    Part.Circle(Vector(0, 0, 0), Vector(0, 0, 1), 3.8),
], False)
sketch4.addConstraint([
    Sketcher.Constraint("Coincident", 0, 3, -1, 1),
    Sketcher.Constraint("Coincident", 1, 3, -1, 1),
    Sketcher.Constraint("Diameter", 0, Q("1.58 in")),
    Sketcher.Constraint("Diameter", 1, 7.5),
])
pad3 = body.newObject("PartDesign::Pad", "Pad002")
pad3.Profile = sketch4
pad3.Length = Q("0.1 in")

sketch5 = body.newObject("Sketcher::SketchObject", "Sketch004")
sketch5.AttachmentSupport = (doc.getObject("XZ_Plane"), [""])
sketch5.MapMode = "FlatFace"
sketch5.AttachmentOffset = App.Placement(Vector(0, 0, -2), App.Rotation())
sketch5.addGeometry(Part.Circle(Vector(0, -9.8, 0), Vector(0, 0, 1), 1.8), False)
sketch5.addConstraint([
    Sketcher.Constraint("PointOnObject", 0, 3, -2),
    Sketcher.Constraint("Diameter", 0, Q("0.14 in")),
    Sketcher.Constraint("DistanceY", 0, 3, -1, 1, Q("0.385 in")),
])
pocket2 = body.newObject("PartDesign::Pocket", "Pocket001")
pocket2.Profile = sketch5
pocket2.Length = Q("0.1 in")
pocket2.Reversed = True
doc.recompute()

polarpattern = body.newObject("PartDesign::PolarPattern", "PolarPattern")
polarpattern.Originals = [pocket2]
polarpattern.Axis = (doc.getObject("Y_Axis"), [""])
polarpattern.Angle = 360
polarpattern.Occurrences = 4
body.Tip = polarpattern

sketch6 = body.newObject("Sketcher::SketchObject", "Sketch005")
sketch6.AttachmentSupport = (doc.getObject("XZ_Plane"), [""])
sketch6.MapMode = "FlatFace"
sketch6.AttachmentOffset = App.Placement(Vector(0, 0, -2), App.Rotation())
sketch6.addGeometry([
    Part.LineSegment(Vector(80, -20, 0), Vector(0, -20, 0)),
    Part.ArcOfCircle(Part.Circle(Vector(0, 0, 0), Vector(0, 0, 1), 20), math.radians(-90), math.radians(90)),
    Part.LineSegment(Vector(0, 20, 0), Vector(80, 20, 0)),
    Part.ArcOfCircle(Part.Circle(Vector(80, 0, 0), Vector(0, 0, 1), 20), math.radians(-90), math.radians(90)),
], False)
sketch6.addConstraint([
    Sketcher.Constraint("Tangent", 0, 2, 1, 1),
    Sketcher.Constraint("Tangent", 1, 2, 2, 1),
    Sketcher.Constraint("Tangent", 2, 2, 3, 2),
    Sketcher.Constraint("Tangent", 3, 1, 0, 1),
    Sketcher.Constraint("Horizontal", 0),
    Sketcher.Constraint("Horizontal", 2),
    Sketcher.Constraint("Coincident", 1, 3, -1, 1),
    Sketcher.Constraint("Radius", 1, Q("0.79 in")),
    Sketcher.Constraint("DistanceX", 0, 2, 0, 1, Q("3.15 in")),
])
pad4 = body.newObject("PartDesign::Pad", "Pad003")
pad4.Profile = sketch6
pad4.Type = "TwoLengths"
pad4.Length = Q("0.0875 in")
pad4.Length2 = Q("0.1 in")
pad4.Reversed = True

sketch7 = body.newObject("Sketcher::SketchObject", "Sketch006")
sketch7.AttachmentSupport = (doc.getObject("XZ_Plane"), [""])
sketch7.MapMode = "FlatFace"
sketch7.AttachmentOffset = App.Placement(Vector(0, 0, -2), App.Rotation())
sketch7.addGeometry([
    Part.Circle(Vector(0, 0, 0), Vector(0, 0, 1), 20.1),
    Part.Circle(Vector(0, 9.8, 0), Vector(0, 0, 1), 1.8),
    Part.Circle(Vector(-9.8, 0, 0), Vector(0, 0, 1), 1.8),
    Part.Circle(Vector(0, 0, 0), Vector(0, 0, 1), 1.4),
    Part.Circle(Vector(9.8, 0, 0), Vector(0, 0, 1), 1.8),
    Part.Circle(Vector(0, -9.8, 0), Vector(0, 0, 1), 1.8),
], False)
sketch7.addConstraint([
    Sketcher.Constraint("Coincident", 0, 3, -1, 1),
    Sketcher.Constraint("Coincident", 3, 3, -1, 1),
    Sketcher.Constraint("Equal", 1, 2),
    Sketcher.Constraint("Equal", 2, 4),
    Sketcher.Constraint("Equal", 4, 5),
    Sketcher.Constraint("Symmetric", 2, 3, 4, 3, -1, 1),
    Sketcher.Constraint("Symmetric", 1, 3, 5, 3, -1, 1),
    Sketcher.Constraint("PointOnObject", 1, 3, -2),
    Sketcher.Constraint("PointOnObject", 2, 3, -1),
    Sketcher.Constraint("Diameter", 0, Q("1.58 in")),
    Sketcher.Constraint("Diameter", 1, Q("0.14 in")),
    Sketcher.Constraint("Diameter", 3, 2.75),
    Sketcher.Constraint("DistanceX", 2, 3, 4, 3, Q("0.77 in")),
    Sketcher.Constraint("DistanceY", 5, 3, 1, 3, Q("0.77 in")),
])
pad5 = body.newObject("PartDesign::Pad", "Pad004")
pad5.Profile = sketch7
pad5.Length = Q("0.0875 in")
pad5.Reversed = True

sketch8 = body.newObject("Sketcher::SketchObject", "Sketch007")
sketch8.AttachmentSupport = (doc.getObject("XZ_Plane"), [""])
sketch8.MapMode = "FlatFace"
sketch8.AttachmentOffset = App.Placement(Vector(0, 0, 0.54), App.Rotation())
add_polygon(sketch8, [(39, 10), (39, -10), (80, -10), (80, 10)])
sketch8.addConstraint([
    Sketcher.Constraint("Vertical", 0),
    Sketcher.Constraint("Horizontal", 1),
    Sketcher.Constraint("Vertical", 2),
    Sketcher.Constraint("Horizontal", 3),
    Sketcher.Constraint("DistanceX", 1, 1, 1, 2, Q("1.61 in")),
    Sketcher.Constraint("DistanceY", 0, 2, 0, 1, Q("0.79 in")),
    Sketcher.Constraint("DistanceY", -1, 1, 2, 2, Q("0.4 in")),
    Sketcher.Constraint("DistanceX", -1, 1, 0, 2, Q("1.54 in")),
])
pocket3 = body.newObject("PartDesign::Pocket", "Pocket002")
pocket3.Profile = sketch8
pocket3.Type = "UpToFirst"

sketch9 = body.newObject("Sketcher::SketchObject", "Sketch008")
sketch9.AttachmentSupport = (doc.getObject("XZ_Plane"), [""])
sketch9.MapMode = "FlatFace"
sketch9.AttachmentOffset = App.Placement(Vector(0, 0, 0.54), App.Rotation())
sketch9.addGeometry([
    Part.Circle(Vector(35.1, 5.1, 0), Vector(0, 0, 1), 1.5),
    Part.Circle(Vector(35.1, -4.8, 0), Vector(0, 0, 1), 1.5),
    Part.Circle(Vector(84.1, 5.1, 0), Vector(0, 0, 1), 1.5),
    Part.Circle(Vector(84.1, -4.8, 0), Vector(0, 0, 1), 1.5),
], False)
sketch9.addConstraint([
    Sketcher.Constraint("Equal", 0, 1),
    Sketcher.Constraint("Equal", 1, 2),
    Sketcher.Constraint("Equal", 2, 3),
    Sketcher.Constraint("Horizontal", 0, 3, 2, 3),
    Sketcher.Constraint("Horizontal", 1, 3, 3, 3),
    Sketcher.Constraint("Vertical", 0, 3, 1, 3),
    Sketcher.Constraint("Vertical", 2, 3, 3, 3),
    Sketcher.Constraint("Diameter", 0, Q("0.12 in")),
    Sketcher.Constraint("DistanceY", -1, 1, 0, 3, Q("0.2 in")),
    Sketcher.Constraint("DistanceX", -1, 1, 0, 3, Q("1.38 in")),
    Sketcher.Constraint("DistanceY", 1, 3, -1, 1, Q("0.19 in")),
    Sketcher.Constraint("DistanceX", -1, 1, 2, 3, Q("3.31 in")),
])
pocket4 = body.newObject("PartDesign::Pocket", "Pocket003")
pocket4.Profile = sketch9
pocket4.Type = "ThroughAll"

sketch10 = body.newObject("Sketcher::SketchObject", "Sketch009")
sketch10.AttachmentSupport = (doc.getObject("XZ_Plane"), [""])
sketch10.MapMode = "FlatFace"
sketch10.AttachmentOffset = App.Placement(Vector(0, 0, -4.2225), App.Rotation())
add_polygon(sketch10, [(-24, -44), (-24, 40), (106, 40), (106, -44)])
sketch10.addConstraint([
    Sketcher.Constraint("Vertical", 0),
    Sketcher.Constraint("Horizontal", 1),
    Sketcher.Constraint("Vertical", 2),
    Sketcher.Constraint("Horizontal", 3),
    Sketcher.Constraint("DistanceX", 1, 1, 1, 2, 129.807809),
    Sketcher.Constraint("DistanceY", 0, 1, 0, 2, 84.506546),
    Sketcher.Constraint("DistanceY", -1, 1, 0, 2, 40.124749),
    Sketcher.Constraint("DistanceX", 0, 2, -1, 1, 24.041357),
])
pocket5 = body.newObject("PartDesign::Pocket", "Pocket004")
pocket5.Profile = sketch10
pocket5.Length = 0.76
pocket5.Reversed = True

sketch11 = body.newObject("Sketcher::SketchObject", "Sketch010")
sketch11.AttachmentSupport = (doc.getObject("XZ_Plane"), [""])
sketch11.MapMode = "FlatFace"
sketch11.AttachmentOffset = App.Placement(Vector(0, 0, 2.5), App.Rotation())
sketch11.addGeometry(Part.Circle(Vector(0, 0, 0), Vector(0, 0, 1), 5), False)
sketch11.addConstraint([
    Sketcher.Constraint("Coincident", 0, 3, -1, 1),
    Sketcher.Constraint("Diameter", 0, 10.4),
])
pocket6 = body.newObject("PartDesign::Pocket", "Pocket005")
pocket6.Profile = sketch11
pocket6.Type = "ThroughAll"

sketch12 = body.newObject("Sketcher::SketchObject", "Sketch011")
sketch12.AttachmentSupport = (doc.getObject("XZ_Plane"), [""])
sketch12.MapMode = "FlatFace"
sketch12.AttachmentOffset = App.Placement(Vector(0, 0, 0.54), App.Rotation())
add_polygon(sketch12, [(80, -10), (80, 10), (39, 10), (39, -10)])
sketch12.addConstraint([
    Sketcher.Constraint("Vertical", 0),
    Sketcher.Constraint("Horizontal", 1),
    Sketcher.Constraint("Vertical", 2),
    Sketcher.Constraint("Horizontal", 3),
    Sketcher.Constraint("DistanceX", 1, 2, 1, 1, Q("1.61 in")),
    Sketcher.Constraint("DistanceY", 0, 1, 0, 2, Q("0.79 in")),
    Sketcher.Constraint("DistanceY", -1, 1, 0, 2, Q("0.4 in")),
    Sketcher.Constraint("DistanceX", -1, 1, 0, 2, Q("3.15 in")),
])
pad6 = body.newObject("PartDesign::Pad", "Pad005")
pad6.Profile = sketch12
pad6.Length = 4.0025
pad6.Reversed = True

sketch13 = body.newObject("Sketcher::SketchObject", "Sketch012")
sketch13.AttachmentSupport = (doc.getObject("XZ_Plane"), [""])
sketch13.MapMode = "FlatFace"
sketch13.AttachmentOffset = App.Placement(Vector(0, 0, 0.54), App.Rotation())
sketch13.addGeometry(Part.Circle(Vector(69, 0, 0), Vector(0, 0, 1), 5), False)
sketch13.addConstraint([
    Sketcher.Constraint("Diameter", 0, 10.4),
    Sketcher.Constraint("DistanceX", -1, 1, 0, 3, 69.344),
    Sketcher.Constraint("DistanceY", -1, 1, 0, 3, 0.125),
])
pocket7 = body.newObject("PartDesign::Pocket", "Pocket006")
pocket7.Profile = sketch13
pocket7.Length = 10

sketch14 = body.newObject("Sketcher::SketchObject", "Sketch013")
sketch14.AttachmentSupport = (doc.getObject("XZ_Plane"), [""])
sketch14.MapMode = "FlatFace"
sketch14.AttachmentOffset = App.Placement(Vector(0, 0, -3.4625), App.Rotation())
sketch14.addGeometry([
    Part.Circle(Vector(69.3, -9.7, 0), Vector(0, 0, 1), 1.8),
    Part.Circle(Vector(69.3, 9.9, 0), Vector(0, 0, 1), 1.8),
    Part.Circle(Vector(59.6, 0, 0), Vector(0, 0, 1), 1.8),
    Part.Circle(Vector(79.1, 0, 0), Vector(0, 0, 1), 1.8),
], False)
sketch14.addConstraint([
    Sketcher.Constraint("Equal", 0, 1),
    Sketcher.Constraint("Equal", 1, 2),
    Sketcher.Constraint("Equal", 2, 3),
    Sketcher.Constraint("PointOnObject", 2, 3, -1),
    Sketcher.Constraint("PointOnObject", 3, 3, -1),
    Sketcher.Constraint("Vertical", 0, 3, 1, 3),
    Sketcher.Constraint("Diameter", 0, 3.56),
    Sketcher.Constraint("DistanceX", -1, 1, 0, 3, 69.344),
    Sketcher.Constraint("DistanceY", 0, 3, -1, 1, 9.655),
    Sketcher.Constraint("DistanceY", -1, 1, 1, 3, 9.905),
    Sketcher.Constraint("DistanceX", -1, 1, 2, 3, 59.564),
    Sketcher.Constraint("DistanceX", -1, 1, 3, 3, 79.124),
])
pocket8 = body.newObject("PartDesign::Pocket", "Pocket007")
pocket8.Profile = sketch14
pocket8.Length = 10
pocket8.Reversed = True

sketch15 = body.newObject("Sketcher::SketchObject", "Sketch014")
sketch15.AttachmentSupport = (doc.getObject("XZ_Plane"), [""])
sketch15.MapMode = "FlatFace"
sketch15.AttachmentOffset = App.Placement(Vector(0, 0, -3.4625), App.Rotation())
sketch15.addGeometry([
    Part.Circle(Vector(84.1, -4.8, 0), Vector(0, 0, 1), 1.5),
    Part.Circle(Vector(84.1, 5.1, 0), Vector(0, 0, 1), 1.5),
], False)
sketch15.addConstraint([
    Sketcher.Constraint("Equal", 0, 1),
    Sketcher.Constraint("Vertical", 0, 3, 1, 3),
    Sketcher.Constraint("Diameter", 0, Q("0.12 in")),
    Sketcher.Constraint("DistanceY", -1, 1, 1, 3, Q("0.2 in")),
    Sketcher.Constraint("DistanceX", -1, 1, 0, 3, Q("3.31 in")),
    Sketcher.Constraint("DistanceY", 0, 3, -1, 1, Q("0.19 in")),
])
pad7 = body.newObject("PartDesign::Pad", "Pad006")
pad7.Profile = sketch15
pad7.Type = "UpToLast"

doc.recompute()
